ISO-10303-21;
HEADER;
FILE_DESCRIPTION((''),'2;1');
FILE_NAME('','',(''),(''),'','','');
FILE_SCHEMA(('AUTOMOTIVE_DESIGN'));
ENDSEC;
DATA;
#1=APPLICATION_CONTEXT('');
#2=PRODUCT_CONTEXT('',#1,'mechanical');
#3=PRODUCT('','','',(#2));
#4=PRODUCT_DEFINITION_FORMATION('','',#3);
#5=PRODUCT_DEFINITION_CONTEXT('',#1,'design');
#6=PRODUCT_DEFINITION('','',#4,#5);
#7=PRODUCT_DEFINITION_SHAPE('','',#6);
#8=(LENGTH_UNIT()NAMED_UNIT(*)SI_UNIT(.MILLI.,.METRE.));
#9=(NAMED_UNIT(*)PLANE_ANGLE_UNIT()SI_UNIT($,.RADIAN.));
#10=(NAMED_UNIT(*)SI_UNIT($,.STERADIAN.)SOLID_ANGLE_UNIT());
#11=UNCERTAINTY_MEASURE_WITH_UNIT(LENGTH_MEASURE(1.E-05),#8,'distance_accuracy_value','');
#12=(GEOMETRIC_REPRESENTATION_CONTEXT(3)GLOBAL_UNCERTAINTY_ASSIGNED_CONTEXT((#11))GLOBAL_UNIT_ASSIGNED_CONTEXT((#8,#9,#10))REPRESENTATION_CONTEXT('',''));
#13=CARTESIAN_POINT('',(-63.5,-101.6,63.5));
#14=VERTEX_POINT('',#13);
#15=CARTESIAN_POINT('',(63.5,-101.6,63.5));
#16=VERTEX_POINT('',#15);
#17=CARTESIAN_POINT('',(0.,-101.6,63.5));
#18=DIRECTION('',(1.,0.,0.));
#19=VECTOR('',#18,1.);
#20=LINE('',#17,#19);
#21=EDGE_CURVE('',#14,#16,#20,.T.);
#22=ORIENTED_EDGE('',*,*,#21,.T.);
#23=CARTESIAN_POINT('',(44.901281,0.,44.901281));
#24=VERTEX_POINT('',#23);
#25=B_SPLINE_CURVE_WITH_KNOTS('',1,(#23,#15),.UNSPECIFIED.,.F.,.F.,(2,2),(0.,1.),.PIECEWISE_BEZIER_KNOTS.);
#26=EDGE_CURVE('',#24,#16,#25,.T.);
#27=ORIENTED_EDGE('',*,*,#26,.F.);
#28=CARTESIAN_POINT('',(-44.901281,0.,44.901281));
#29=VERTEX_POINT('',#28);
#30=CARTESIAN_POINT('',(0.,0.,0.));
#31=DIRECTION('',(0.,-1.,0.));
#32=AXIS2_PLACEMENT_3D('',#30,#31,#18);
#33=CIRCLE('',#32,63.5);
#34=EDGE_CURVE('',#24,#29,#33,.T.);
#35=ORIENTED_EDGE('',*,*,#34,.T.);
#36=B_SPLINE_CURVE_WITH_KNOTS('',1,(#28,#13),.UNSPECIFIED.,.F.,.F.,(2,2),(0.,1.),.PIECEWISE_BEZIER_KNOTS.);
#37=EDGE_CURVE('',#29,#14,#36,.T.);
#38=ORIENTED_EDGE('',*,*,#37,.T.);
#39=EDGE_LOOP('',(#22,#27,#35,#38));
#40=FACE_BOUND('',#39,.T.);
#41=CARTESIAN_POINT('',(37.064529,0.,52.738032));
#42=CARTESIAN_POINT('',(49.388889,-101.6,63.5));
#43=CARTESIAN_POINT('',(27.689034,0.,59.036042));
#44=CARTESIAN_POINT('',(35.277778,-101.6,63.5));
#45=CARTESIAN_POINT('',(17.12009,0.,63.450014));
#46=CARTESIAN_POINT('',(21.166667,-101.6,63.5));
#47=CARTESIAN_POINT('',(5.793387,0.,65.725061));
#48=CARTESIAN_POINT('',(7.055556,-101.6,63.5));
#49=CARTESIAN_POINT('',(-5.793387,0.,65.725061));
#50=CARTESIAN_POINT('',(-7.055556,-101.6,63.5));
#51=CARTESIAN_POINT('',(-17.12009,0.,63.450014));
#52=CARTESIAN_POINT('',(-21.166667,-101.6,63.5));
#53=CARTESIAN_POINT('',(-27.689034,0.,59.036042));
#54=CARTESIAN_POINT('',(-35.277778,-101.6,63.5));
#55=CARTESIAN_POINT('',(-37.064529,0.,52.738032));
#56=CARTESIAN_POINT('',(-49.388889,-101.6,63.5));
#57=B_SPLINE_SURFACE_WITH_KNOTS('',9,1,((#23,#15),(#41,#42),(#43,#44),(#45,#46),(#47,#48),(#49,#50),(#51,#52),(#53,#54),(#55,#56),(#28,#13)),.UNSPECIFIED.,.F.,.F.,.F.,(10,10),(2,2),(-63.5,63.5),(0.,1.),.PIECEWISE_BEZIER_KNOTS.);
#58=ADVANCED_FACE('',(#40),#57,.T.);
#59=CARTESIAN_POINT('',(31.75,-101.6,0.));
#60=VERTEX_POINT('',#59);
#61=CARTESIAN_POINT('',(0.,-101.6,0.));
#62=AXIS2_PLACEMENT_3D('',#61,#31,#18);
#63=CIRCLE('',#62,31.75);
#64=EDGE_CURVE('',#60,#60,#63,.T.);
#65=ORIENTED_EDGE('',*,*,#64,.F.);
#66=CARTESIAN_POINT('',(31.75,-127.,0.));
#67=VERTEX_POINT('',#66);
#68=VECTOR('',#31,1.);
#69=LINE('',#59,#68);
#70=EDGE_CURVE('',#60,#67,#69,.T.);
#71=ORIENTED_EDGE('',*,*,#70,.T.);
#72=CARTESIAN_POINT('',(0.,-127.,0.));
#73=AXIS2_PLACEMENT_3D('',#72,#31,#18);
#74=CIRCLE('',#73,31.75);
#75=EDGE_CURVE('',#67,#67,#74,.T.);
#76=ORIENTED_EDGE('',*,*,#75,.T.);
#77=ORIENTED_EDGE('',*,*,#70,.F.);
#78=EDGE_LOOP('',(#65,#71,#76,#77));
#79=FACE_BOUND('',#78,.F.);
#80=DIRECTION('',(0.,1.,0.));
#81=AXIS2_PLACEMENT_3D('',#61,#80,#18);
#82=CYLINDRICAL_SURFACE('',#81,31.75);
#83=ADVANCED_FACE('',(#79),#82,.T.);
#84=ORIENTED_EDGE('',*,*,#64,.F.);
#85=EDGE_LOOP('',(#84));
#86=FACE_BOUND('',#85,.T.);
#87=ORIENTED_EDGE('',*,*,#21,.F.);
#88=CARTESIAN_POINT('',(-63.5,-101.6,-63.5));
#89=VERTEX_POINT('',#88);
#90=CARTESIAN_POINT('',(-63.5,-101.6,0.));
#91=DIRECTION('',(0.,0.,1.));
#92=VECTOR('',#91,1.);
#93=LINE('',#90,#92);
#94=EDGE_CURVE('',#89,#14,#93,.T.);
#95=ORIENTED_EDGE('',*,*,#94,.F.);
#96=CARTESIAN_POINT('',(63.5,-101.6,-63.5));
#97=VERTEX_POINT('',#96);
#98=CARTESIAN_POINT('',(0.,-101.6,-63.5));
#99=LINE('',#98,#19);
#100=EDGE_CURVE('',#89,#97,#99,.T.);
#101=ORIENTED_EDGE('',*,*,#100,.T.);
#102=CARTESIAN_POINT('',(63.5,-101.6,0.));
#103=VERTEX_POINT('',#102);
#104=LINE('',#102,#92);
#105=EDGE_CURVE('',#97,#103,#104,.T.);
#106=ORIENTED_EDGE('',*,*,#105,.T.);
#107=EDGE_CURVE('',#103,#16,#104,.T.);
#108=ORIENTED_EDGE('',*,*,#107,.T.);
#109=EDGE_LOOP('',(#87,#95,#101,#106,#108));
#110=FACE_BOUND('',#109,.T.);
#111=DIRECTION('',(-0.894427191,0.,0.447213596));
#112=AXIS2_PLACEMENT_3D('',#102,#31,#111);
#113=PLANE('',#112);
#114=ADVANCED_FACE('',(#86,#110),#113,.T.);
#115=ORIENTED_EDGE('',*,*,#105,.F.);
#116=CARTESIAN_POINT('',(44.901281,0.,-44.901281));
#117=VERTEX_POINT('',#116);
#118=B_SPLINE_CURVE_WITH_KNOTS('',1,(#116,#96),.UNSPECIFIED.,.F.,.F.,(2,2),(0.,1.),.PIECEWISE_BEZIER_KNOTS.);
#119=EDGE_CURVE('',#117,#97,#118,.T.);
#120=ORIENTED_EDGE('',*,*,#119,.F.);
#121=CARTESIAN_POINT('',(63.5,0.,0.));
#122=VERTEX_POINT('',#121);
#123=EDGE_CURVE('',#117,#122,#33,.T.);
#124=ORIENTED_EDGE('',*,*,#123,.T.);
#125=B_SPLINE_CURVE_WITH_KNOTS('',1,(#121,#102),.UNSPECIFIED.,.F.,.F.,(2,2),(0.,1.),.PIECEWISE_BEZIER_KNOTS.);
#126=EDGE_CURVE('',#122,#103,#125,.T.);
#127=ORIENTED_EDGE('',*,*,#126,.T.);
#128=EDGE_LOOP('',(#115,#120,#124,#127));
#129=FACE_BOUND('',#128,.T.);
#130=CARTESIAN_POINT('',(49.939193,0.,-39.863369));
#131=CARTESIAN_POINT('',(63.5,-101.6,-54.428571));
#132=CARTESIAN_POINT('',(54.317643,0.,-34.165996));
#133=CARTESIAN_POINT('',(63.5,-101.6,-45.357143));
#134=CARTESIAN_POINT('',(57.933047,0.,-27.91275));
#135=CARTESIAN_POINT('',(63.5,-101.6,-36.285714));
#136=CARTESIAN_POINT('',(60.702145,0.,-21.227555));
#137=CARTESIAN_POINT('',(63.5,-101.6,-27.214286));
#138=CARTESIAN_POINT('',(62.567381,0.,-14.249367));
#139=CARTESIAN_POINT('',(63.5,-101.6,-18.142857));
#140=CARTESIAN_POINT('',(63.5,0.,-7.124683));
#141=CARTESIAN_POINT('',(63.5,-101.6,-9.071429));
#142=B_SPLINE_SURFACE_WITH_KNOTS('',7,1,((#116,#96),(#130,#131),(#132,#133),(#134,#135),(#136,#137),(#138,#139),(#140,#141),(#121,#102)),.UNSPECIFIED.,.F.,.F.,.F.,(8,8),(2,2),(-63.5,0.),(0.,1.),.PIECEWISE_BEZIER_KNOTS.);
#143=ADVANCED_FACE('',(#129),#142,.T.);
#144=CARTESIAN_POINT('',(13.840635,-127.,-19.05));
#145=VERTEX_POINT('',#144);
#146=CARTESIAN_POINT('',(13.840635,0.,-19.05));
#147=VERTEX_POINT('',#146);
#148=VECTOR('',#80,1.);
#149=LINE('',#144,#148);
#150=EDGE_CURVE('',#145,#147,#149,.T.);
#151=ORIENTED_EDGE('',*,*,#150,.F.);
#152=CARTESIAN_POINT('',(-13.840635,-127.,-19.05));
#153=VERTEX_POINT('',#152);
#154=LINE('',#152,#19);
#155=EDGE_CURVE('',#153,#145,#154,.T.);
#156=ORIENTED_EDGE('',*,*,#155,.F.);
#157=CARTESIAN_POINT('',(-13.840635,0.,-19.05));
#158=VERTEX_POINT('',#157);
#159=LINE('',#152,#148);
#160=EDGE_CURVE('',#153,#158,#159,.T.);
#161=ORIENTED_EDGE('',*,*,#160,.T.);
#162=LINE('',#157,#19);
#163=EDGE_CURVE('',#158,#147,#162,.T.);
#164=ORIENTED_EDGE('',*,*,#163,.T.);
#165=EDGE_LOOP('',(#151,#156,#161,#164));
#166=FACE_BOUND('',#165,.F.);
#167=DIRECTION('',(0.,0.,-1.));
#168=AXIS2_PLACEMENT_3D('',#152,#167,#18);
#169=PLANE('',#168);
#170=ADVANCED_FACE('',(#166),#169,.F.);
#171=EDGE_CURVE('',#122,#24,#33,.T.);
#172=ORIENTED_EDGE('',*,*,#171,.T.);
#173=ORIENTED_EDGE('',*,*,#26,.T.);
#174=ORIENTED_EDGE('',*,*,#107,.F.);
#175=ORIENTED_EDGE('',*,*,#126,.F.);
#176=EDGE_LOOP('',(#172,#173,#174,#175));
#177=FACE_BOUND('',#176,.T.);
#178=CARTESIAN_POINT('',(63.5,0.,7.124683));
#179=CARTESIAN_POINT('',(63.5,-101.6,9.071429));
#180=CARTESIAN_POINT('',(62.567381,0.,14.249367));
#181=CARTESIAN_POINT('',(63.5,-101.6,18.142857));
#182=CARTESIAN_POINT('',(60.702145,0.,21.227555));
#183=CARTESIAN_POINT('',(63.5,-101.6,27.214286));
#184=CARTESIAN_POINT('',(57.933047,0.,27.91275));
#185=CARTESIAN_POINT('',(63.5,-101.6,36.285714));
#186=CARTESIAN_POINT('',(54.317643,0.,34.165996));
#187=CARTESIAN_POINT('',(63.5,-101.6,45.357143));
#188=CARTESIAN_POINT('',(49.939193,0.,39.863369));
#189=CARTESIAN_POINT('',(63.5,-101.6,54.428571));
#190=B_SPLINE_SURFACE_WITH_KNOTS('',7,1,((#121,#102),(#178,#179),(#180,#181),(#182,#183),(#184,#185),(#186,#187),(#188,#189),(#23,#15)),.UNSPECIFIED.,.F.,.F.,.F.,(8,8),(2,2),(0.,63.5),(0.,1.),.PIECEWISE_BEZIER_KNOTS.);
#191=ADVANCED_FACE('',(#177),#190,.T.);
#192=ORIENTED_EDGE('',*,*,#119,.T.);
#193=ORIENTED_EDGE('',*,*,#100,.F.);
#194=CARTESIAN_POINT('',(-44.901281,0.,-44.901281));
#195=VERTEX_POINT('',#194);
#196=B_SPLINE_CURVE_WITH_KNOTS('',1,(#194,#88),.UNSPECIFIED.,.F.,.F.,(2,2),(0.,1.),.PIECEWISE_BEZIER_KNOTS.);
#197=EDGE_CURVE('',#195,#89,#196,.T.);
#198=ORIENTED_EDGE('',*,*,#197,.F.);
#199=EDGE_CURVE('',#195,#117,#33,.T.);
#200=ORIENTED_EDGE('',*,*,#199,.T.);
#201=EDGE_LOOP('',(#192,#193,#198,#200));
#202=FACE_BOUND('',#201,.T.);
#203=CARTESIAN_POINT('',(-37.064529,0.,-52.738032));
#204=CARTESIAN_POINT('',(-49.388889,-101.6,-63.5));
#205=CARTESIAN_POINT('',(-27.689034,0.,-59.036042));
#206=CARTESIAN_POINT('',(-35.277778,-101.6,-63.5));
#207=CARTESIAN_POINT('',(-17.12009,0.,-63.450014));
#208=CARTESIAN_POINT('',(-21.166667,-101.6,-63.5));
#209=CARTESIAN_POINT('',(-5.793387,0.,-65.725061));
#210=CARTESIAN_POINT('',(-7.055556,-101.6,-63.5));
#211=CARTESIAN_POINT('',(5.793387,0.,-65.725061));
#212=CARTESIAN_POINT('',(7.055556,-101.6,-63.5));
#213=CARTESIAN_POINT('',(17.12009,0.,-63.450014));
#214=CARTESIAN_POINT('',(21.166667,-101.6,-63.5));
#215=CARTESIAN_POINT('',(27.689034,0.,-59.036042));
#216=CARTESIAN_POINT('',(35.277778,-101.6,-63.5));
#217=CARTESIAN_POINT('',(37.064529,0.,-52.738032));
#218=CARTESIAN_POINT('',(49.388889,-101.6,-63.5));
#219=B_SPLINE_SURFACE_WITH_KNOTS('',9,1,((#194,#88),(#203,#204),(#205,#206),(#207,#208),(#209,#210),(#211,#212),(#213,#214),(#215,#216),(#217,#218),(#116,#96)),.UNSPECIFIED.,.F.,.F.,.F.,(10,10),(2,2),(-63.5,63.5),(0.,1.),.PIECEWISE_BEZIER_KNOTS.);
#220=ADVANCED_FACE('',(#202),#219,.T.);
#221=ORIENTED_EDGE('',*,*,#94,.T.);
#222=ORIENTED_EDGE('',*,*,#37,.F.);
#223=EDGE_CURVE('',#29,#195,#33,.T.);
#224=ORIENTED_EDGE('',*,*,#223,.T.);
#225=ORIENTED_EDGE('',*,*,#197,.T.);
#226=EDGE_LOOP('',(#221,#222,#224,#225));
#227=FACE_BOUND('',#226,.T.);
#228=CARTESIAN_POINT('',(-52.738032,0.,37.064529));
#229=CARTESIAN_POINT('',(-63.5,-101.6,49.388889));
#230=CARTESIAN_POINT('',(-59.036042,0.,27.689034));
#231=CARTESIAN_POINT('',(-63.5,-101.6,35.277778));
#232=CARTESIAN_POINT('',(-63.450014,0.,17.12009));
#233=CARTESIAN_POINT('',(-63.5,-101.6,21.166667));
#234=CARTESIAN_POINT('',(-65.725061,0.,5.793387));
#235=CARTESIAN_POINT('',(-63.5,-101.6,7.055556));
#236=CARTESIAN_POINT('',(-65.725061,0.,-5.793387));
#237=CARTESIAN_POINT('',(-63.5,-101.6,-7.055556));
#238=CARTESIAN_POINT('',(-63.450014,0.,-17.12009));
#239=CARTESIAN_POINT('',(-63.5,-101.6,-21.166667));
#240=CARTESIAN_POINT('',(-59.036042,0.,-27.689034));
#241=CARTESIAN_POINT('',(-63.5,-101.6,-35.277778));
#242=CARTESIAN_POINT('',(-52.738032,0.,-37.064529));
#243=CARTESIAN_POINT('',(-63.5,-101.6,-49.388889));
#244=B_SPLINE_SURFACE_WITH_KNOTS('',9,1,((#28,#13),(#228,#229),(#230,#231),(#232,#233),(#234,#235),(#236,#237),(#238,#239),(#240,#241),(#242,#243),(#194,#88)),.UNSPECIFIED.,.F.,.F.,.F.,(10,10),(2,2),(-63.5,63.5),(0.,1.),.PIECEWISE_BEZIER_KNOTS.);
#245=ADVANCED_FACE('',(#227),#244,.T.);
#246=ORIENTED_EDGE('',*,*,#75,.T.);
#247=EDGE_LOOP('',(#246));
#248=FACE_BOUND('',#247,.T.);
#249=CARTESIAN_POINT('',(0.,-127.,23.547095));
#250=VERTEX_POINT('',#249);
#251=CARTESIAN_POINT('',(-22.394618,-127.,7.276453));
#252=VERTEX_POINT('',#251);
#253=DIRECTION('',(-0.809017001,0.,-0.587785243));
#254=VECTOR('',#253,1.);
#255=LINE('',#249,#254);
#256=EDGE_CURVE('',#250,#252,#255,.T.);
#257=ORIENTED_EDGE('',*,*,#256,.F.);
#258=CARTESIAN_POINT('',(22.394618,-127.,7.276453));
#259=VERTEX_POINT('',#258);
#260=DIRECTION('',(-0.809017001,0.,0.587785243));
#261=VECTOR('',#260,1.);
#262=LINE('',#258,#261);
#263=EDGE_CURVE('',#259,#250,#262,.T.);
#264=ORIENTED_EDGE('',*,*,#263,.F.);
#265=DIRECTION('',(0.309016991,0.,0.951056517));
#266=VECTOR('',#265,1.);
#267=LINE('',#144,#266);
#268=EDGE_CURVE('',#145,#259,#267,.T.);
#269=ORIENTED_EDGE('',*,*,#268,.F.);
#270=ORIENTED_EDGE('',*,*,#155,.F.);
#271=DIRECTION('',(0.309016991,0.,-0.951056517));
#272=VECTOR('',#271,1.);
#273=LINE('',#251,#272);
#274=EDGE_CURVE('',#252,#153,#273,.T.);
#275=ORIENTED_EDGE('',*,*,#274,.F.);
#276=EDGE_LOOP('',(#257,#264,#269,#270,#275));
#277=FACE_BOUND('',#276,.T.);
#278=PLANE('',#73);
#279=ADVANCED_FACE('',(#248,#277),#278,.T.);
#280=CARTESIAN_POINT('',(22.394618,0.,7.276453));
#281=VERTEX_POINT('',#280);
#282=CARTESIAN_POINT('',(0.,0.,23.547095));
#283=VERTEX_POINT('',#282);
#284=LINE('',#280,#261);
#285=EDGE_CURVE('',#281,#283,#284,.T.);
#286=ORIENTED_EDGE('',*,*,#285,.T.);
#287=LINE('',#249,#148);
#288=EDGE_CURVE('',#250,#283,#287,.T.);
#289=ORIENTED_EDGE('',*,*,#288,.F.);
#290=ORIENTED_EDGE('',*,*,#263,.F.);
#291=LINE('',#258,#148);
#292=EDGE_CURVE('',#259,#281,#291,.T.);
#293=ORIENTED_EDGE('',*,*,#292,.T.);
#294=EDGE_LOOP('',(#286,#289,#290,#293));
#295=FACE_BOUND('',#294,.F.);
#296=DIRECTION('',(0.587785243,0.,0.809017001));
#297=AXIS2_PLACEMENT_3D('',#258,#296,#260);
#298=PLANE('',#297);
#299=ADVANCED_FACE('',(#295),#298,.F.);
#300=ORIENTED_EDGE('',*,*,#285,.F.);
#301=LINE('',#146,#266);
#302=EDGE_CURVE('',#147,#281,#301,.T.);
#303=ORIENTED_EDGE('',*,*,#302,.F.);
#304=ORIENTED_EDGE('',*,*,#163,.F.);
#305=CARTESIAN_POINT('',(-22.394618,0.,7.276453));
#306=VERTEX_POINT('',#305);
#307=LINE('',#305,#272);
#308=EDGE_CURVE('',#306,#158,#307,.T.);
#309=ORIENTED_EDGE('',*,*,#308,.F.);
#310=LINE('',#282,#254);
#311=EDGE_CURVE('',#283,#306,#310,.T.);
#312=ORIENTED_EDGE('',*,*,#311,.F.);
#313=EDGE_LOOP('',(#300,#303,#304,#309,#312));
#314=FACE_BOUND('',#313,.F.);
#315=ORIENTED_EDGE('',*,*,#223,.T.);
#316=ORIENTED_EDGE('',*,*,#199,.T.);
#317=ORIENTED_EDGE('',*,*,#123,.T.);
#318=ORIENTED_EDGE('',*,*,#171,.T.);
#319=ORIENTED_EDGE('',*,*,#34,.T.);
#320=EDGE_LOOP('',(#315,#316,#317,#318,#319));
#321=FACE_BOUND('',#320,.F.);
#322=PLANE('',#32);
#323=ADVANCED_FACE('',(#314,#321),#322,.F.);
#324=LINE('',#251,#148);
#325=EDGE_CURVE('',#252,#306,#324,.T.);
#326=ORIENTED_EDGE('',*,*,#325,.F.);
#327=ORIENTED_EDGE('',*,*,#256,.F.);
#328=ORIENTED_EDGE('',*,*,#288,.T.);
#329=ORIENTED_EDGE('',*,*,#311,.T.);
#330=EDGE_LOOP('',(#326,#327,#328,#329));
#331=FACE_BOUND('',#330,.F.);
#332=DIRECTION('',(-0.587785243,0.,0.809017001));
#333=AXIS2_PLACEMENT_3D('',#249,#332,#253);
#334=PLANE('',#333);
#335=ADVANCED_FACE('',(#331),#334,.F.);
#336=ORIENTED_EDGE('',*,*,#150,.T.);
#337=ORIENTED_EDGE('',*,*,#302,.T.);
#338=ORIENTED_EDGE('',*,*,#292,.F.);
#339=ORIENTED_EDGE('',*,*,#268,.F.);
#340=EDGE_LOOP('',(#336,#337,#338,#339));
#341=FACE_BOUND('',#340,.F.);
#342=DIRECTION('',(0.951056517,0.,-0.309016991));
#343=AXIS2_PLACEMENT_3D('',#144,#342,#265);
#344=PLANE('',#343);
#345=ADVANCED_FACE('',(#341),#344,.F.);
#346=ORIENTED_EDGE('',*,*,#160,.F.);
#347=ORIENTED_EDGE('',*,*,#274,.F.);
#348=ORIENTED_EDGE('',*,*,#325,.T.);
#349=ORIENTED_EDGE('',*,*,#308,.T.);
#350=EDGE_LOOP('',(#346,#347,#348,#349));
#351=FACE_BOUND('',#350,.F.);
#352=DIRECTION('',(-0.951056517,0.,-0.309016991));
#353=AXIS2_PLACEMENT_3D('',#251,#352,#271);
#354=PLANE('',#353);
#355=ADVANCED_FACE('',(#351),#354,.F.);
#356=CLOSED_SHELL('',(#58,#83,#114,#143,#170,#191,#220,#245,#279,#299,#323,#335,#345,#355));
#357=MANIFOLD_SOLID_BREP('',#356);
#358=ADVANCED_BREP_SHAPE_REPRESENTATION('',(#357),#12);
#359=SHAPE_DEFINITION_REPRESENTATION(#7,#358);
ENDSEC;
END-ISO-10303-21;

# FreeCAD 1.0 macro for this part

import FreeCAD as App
import Part
import Sketcher
from FreeCAD import Vector
Q = App.Units.Quantity

doc = App.newDocument("Part")
body = doc.addObject("PartDesign::Body", "Body")

# Sketch on XZ plane
sketch1 = body.newObject("Sketcher::SketchObject", "Sketch")
sketch1.AttachmentSupport = (doc.getObject("XZ_Plane"), [""])
sketch1.MapMode = "FlatFace"
sketch1.addGeometry(Part.Circle(Vector(0, 0, 0), Vector(0, 0, 1), 64), False)
sketch1.addConstraint([
    Sketcher.Constraint("Coincident", 0, 3, -1, 1),
    Sketcher.Constraint("Diameter", 0, Q("5 in")),
])

# Sketch on XZ plane
sketch2 = body.newObject("Sketcher::SketchObject", "Sketch001")
sketch2.AttachmentSupport = (doc.getObject("XZ_Plane"), [""])
sketch2.MapMode = "FlatFace"
sketch2.AttachmentOffset = App.Placement(Vector(0, 0, 4 * 25.4), App.Rotation())
sketch2.addGeometry([
    Part.LineSegment(Vector(-64, 64, 0), Vector(-64, -64, 0)),
    Part.LineSegment(Vector(-64, -64, 0), Vector(64, -64, 0)),
    Part.LineSegment(Vector(64, -64, 0), Vector(64, 64, 0)),
    Part.LineSegment(Vector(64, 64, 0), Vector(-64, 64, 0)),
], False)
sketch2.addConstraint([
    Sketcher.Constraint("Coincident", 0, 2, 1, 1),
    Sketcher.Constraint("Coincident", 1, 2, 2, 1),
    Sketcher.Constraint("Coincident", 2, 2, 3, 1),
    Sketcher.Constraint("Coincident", 3, 2, 0, 1),
    Sketcher.Constraint("Vertical", 0),
    Sketcher.Constraint("Horizontal", 1),
    Sketcher.Constraint("Vertical", 2),
    Sketcher.Constraint("Horizontal", 3),
    Sketcher.Constraint("Symmetric", 0, 2, 2, 2, -1, 1),
    Sketcher.Constraint("Equal", 3, 0),
    Sketcher.Constraint("DistanceX", 1, 1, 1, 2, Q("5 in")),
])

additiveloft = body.newObject("PartDesign::AdditiveLoft", "AdditiveLoft")
additiveloft.Profile = sketch1
additiveloft.Sections = [sketch2]

# Sketch on XZ plane
sketch3 = body.newObject("Sketcher::SketchObject", "Sketch002")
sketch3.AttachmentSupport = (doc.getObject("XZ_Plane"), [""])
sketch3.MapMode = "FlatFace"
sketch3.AttachmentOffset = App.Placement(Vector(0, 0, 4 * 25.4), App.Rotation())
sketch3.addGeometry(Part.Circle(Vector(0, 0, 0), Vector(0, 0, 1), 32), False)
sketch3.addConstraint([
    Sketcher.Constraint("Coincident", 0, 3, -1, 1),
    Sketcher.Constraint("Diameter", 0, Q("2.5 in")),
])
pad1 = body.newObject("PartDesign::Pad", "Pad")
pad1.Profile = sketch3
pad1.Length = Q("1 in")

# Sketch on XZ plane
sketch4 = body.newObject("Sketcher::SketchObject", "Sketch003")
sketch4.AttachmentSupport = (doc.getObject("XZ_Plane"), [""])
sketch4.MapMode = "FlatFace"
sketch4.AttachmentOffset = App.Placement(Vector(0, 0, 5 * 25.4), App.Rotation())
sketch4.addGeometry([
    Part.LineSegment(Vector(-22, 7, 0), Vector(-14, -19, 0)),  # 0
    Part.LineSegment(Vector(-14, -19, 0), Vector(14, -19, 0)),  # 1
    Part.LineSegment(Vector(14, -19, 0), Vector(22, 7, 0)),  # 2
    Part.LineSegment(Vector(22, 7, 0), Vector(0, 24, 0)),  # 3
    Part.LineSegment(Vector(0, 24, 0), Vector(-22, 7, 0)),  # 4
], False)
sketch4.addConstraint([
    Sketcher.Constraint("Coincident", 0, 2, 1, 1),
    Sketcher.Constraint("Coincident", 1, 2, 2, 1),
    Sketcher.Constraint("Coincident", 2, 2, 3, 1),
    Sketcher.Constraint("Coincident", 3, 2, 4, 1),
    Sketcher.Constraint("Coincident", 4, 2, 0, 1),
    Sketcher.Constraint("Horizontal", 1),
    Sketcher.Constraint("Symmetric", 2, 2, 4, 2, -2),
    Sketcher.Constraint("PointOnObject", 3, 2, -2),
    Sketcher.Constraint("Equal", 0, 2),
    Sketcher.Constraint("Equal", 2, 3),
    Sketcher.Constraint("Angle", 0, Q("-72 deg")),
    Sketcher.Constraint("Angle", 3, Q("144.000001 deg")),
    Sketcher.Constraint("DistanceY", 0, 2, -1, 1, Q("0.75 in")),
    Sketcher.Constraint("DistanceX", 1, 1, 1, 2, Q("27.68127 mm")),
])
pocket1 = body.newObject("PartDesign::Pocket", "Pocket")
pocket1.Profile = sketch4
pocket1.Length = Q("5 in")

doc.recompute()
